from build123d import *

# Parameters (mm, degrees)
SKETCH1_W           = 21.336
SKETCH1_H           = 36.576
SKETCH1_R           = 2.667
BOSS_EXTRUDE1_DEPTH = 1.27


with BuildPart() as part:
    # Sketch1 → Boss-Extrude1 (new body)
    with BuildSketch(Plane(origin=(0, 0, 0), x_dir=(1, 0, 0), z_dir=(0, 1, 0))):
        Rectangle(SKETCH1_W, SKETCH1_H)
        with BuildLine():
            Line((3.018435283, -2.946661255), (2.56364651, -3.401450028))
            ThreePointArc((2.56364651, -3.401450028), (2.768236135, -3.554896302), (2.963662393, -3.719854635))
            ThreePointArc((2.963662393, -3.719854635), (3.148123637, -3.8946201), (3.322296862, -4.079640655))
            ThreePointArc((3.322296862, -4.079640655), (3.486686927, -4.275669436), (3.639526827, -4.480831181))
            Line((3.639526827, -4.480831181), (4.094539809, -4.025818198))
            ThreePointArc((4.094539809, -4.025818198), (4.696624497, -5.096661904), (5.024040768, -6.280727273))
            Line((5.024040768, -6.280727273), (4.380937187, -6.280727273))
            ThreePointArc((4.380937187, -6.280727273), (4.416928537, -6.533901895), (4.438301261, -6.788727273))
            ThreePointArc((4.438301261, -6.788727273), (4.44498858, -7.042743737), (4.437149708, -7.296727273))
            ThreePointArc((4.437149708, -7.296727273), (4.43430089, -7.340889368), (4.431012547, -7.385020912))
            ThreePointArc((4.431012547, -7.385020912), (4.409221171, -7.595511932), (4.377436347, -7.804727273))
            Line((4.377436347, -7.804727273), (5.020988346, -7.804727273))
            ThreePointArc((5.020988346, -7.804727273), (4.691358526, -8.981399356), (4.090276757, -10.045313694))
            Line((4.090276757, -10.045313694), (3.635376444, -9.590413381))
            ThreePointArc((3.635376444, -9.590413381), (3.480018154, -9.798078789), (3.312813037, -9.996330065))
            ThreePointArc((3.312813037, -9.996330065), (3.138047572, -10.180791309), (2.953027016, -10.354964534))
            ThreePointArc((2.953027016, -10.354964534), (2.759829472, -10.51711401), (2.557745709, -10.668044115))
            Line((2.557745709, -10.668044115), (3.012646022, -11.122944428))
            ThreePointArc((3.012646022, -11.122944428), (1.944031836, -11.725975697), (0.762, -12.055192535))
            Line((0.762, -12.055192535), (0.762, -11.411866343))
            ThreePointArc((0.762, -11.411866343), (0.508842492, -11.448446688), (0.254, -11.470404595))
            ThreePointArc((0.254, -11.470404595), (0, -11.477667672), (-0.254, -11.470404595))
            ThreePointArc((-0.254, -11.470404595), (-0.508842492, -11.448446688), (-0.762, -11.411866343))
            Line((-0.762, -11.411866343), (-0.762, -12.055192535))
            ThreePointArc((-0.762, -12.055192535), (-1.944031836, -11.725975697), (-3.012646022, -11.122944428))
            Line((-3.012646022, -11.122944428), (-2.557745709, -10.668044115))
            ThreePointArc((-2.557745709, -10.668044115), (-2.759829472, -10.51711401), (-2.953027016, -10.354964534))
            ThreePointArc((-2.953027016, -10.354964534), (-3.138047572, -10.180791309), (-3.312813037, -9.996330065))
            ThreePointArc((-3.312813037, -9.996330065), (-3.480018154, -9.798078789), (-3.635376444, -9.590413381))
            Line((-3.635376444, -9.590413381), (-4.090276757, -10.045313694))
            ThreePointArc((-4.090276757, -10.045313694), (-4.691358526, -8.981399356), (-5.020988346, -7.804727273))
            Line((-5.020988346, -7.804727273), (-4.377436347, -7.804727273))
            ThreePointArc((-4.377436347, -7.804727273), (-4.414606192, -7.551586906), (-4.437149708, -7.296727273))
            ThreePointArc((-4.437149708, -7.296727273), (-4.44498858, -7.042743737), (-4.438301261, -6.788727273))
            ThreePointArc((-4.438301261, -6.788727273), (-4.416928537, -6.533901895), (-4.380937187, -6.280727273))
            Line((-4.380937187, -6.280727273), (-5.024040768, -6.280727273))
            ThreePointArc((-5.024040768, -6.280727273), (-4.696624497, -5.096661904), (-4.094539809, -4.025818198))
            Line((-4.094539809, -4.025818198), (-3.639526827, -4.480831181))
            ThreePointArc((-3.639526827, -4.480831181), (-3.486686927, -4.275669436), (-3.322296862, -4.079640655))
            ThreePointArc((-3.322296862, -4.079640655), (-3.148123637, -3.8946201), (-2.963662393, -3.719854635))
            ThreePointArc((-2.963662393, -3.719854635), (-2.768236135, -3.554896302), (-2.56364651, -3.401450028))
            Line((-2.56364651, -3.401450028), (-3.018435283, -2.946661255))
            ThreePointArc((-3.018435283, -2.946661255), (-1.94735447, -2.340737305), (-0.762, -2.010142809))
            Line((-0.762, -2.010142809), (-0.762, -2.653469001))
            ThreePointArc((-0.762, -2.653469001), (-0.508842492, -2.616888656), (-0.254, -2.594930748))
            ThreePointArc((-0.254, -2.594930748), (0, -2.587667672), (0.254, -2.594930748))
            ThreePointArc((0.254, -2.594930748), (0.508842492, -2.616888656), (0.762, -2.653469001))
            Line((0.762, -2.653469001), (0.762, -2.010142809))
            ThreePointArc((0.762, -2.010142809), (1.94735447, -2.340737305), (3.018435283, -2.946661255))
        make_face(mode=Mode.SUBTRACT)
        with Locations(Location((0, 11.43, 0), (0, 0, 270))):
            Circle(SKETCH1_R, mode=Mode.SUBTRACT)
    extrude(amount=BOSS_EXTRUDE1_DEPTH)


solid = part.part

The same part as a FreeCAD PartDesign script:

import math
import FreeCAD as App
import Part
import Sketcher

V = App.Vector
Q = App.Units.Quantity


def add_polygon(sketch, points):
    """Adds a closed chain of lines whose ends are joined by coincident constraints."""
    first, n = sketch.GeometryCount, len(points)
    for a, b in zip(points, points[1:] + points[:1]):
        sketch.addGeometry(Part.LineSegment(App.Vector(*a, 0), App.Vector(*b, 0)), False)
    for i in range(n):
        sketch.addConstraint(Sketcher.Constraint("Coincident", first + i, 2, first + (i + 1) % n, 1))

doc = App.newDocument("Part")
body = doc.addObject("PartDesign::Body", "Body")

# Sketch on XZ plane
sketch1 = body.newObject("Sketcher::SketchObject", "Sketch")
sketch1.AttachmentSupport = (doc.getObject("XZ_Plane"), [""])
sketch1.MapMode = "FlatFace"
add_polygon(sketch1, [(-10.668, -18.288), (-10.668, 18.288), (10.668, 18.288), (10.668, -18.288)])  # lines 0-3
sketch1.addGeometry(Part.ArcOfCircle(Part.Circle(V(0, 7.032668, 0), V(0, 0, 1), 5.08), math.radians(-81.373073), math.radians(-53.545789)), False)  # 4
sketch1.addGeometry(Part.LineSegment(V(3.018435, 2.946661, 0), V(2.563647, 3.40145, 0)), False)  # 5
sketch1.addGeometry(Part.ArcOfCircle(Part.Circle(V(0, 7.032668, 0), V(0, 0, 1), 4.445), math.radians(-54.777836), math.radians(-48.183994)), False)  # 6
sketch1.addGeometry(Part.ArcOfCircle(Part.Circle(V(0, 7.032668, 0), V(0, 0, 1), 4.445), math.radians(-48.183994), math.radians(-41.632328)), False)  # 7
sketch1.addGeometry(Part.ArcOfCircle(Part.Circle(V(0, 7.032668, 0), V(0, 0, 1), 4.445), math.radians(-41.632328), math.radians(-35.036031)), False)  # 8
sketch1.addGeometry(Part.LineSegment(V(3.639527, 4.480831, 0), V(4.09454, 4.025818, 0)), False)  # 9
sketch1.addGeometry(Part.ArcOfCircle(Part.Circle(V(0, 7.032668, 0), V(0, 0, 1), 5.08), math.radians(-36.291919), math.radians(-8.512186)), False)  # 10
sketch1.addGeometry(Part.LineSegment(V(5.024041, 6.280727, 0), V(4.380937, 6.280727, 0)), False)  # 11
sketch1.addGeometry(Part.ArcOfCircle(Part.Circle(V(0, 7.032668, 0), V(0, 0, 1), 4.445), math.radians(-9.7393), math.radians(-3.145957)), False)  # 12
sketch1.addGeometry(Part.ArcOfCircle(Part.Circle(V(0, 7.032668, 0), V(0, 0, 1), 4.445), math.radians(-3.145957), math.radians(3.405717)), False)  # 13
sketch1.addGeometry(Part.ArcOfCircle(Part.Circle(V(-0.000009, 7.032667, 0), V(0, 0, 1), 4.445009), math.radians(3.405719), math.radians(4.546581)), False)  # 14
sketch1.addGeometry(Part.ArcOfCircle(Part.Circle(V(0, 7.032668, 0), V(0, 0, 1), 4.445), math.radians(4.546582), math.radians(10.002532)), False)  # 15
sketch1.addGeometry(Part.LineSegment(V(4.377436, 7.804727, 0), V(5.020988, 7.804727, 0)), False)  # 16
sketch1.addGeometry(Part.ArcOfCircle(Part.Circle(V(0, 7.032668, 0), V(0, 0, 1), 5.08), math.radians(8.741702), math.radians(36.373073)), False)  # 17
sketch1.addGeometry(Part.LineSegment(V(4.090277, 10.045314, 0), V(3.635376, 9.590413, 0)), False)  # 18
sketch1.addGeometry(Part.ArcOfCircle(Part.Circle(V(0, 7.032668, 0), V(0, 0, 1), 4.445), math.radians(35.129111), math.radians(41.816006)), False)  # 19
sketch1.addGeometry(Part.ArcOfCircle(Part.Circle(V(0, 7.032668, 0), V(0, 0, 1), 4.445), math.radians(41.816006), math.radians(48.367672)), False)  # 20
sketch1.addGeometry(Part.ArcOfCircle(Part.Circle(V(0, 7.032668, 0), V(0, 0, 1), 4.445), math.radians(48.367672), math.radians(54.87089)), False)  # 21
sketch1.addGeometry(Part.LineSegment(V(2.557746, 10.668044, 0), V(3.012646, 11.122944, 0)), False)  # 22
sketch1.addGeometry(Part.ArcOfCircle(Part.Circle(V(0, 7.032668, 0), V(0, 0, 1), 5.08), math.radians(53.626927), math.radians(81.373073)), False)  # 23
sketch1.addGeometry(Part.LineSegment(V(0.762, 12.055193, 0), V(0.762, 11.411866, 0)), False)  # 24
sketch1.addGeometry(Part.ArcOfCircle(Part.Circle(V(0, 7.032668, 0), V(0, 0, 1), 4.445), math.radians(80.12911), math.radians(86.724171)), False)  # 25
sketch1.addGeometry(Part.ArcOfCircle(Part.Circle(V(0, 7.032668, 0), V(0, 0, 1), 4.445), math.radians(86.724171), math.radians(93.275829)), False)  # 26
sketch1.addGeometry(Part.ArcOfCircle(Part.Circle(V(0, 7.032668, 0), V(0, 0, 1), 4.445), math.radians(93.275829), math.radians(99.87089)), False)  # 27
sketch1.addGeometry(Part.LineSegment(V(-0.762, 11.411866, 0), V(-0.762, 12.055193, 0)), False)  # 28
sketch1.addGeometry(Part.ArcOfCircle(Part.Circle(V(0, 7.032668, 0), V(0, 0, 1), 5.08), math.radians(98.626927), math.radians(126.373073)), False)  # 29
sketch1.addGeometry(Part.LineSegment(V(-3.012646, 11.122944, 0), V(-2.557746, 10.668044, 0)), False)  # 30
sketch1.addGeometry(Part.ArcOfCircle(Part.Circle(V(0, 7.032668, 0), V(0, 0, 1), 4.445), math.radians(125.12911), math.radians(131.632328)), False)  # 31
sketch1.addGeometry(Part.ArcOfCircle(Part.Circle(V(0, 7.032668, 0), V(0, 0, 1), 4.445), math.radians(131.632328), math.radians(138.183994)), False)  # 32
sketch1.addGeometry(Part.ArcOfCircle(Part.Circle(V(0, 7.032668, 0), V(0, 0, 1), 4.445), math.radians(138.183994), math.radians(144.870889)), False)  # 33
sketch1.addGeometry(Part.LineSegment(V(-3.635376, 9.590413, 0), V(-4.090277, 10.045314, 0)), False)  # 34
sketch1.addGeometry(Part.ArcOfCircle(Part.Circle(V(0, 7.032668, 0), V(0, 0, 1), 5.08), math.radians(143.626927), math.radians(171.258298)), False)  # 35
sketch1.addGeometry(Part.LineSegment(V(-5.020988, 7.804727, 0), V(-4.377436, 7.804727, 0)), False)  # 36
sketch1.addGeometry(Part.ArcOfCircle(Part.Circle(V(0, 7.032668, 0), V(0, 0, 1), 4.445), math.radians(169.997468), math.radians(176.594283)), False)  # 37
sketch1.addGeometry(Part.ArcOfCircle(Part.Circle(V(0, 7.032668, 0), V(0, 0, 1), 4.445), math.radians(176.594283), math.radians(183.145957)), False)  # 38
sketch1.addGeometry(Part.ArcOfCircle(Part.Circle(V(0, 7.032668, 0), V(0, 0, 1), 4.445), math.radians(-176.854043), math.radians(-170.2607)), False)  # 39
sketch1.addGeometry(Part.LineSegment(V(-4.380937, 6.280727, 0), V(-5.024041, 6.280727, 0)), False)  # 40
sketch1.addGeometry(Part.ArcOfCircle(Part.Circle(V(0, 7.032668, 0), V(0, 0, 1), 5.08), math.radians(-171.487814), math.radians(-143.708081)), False)  # 41
sketch1.addGeometry(Part.LineSegment(V(-4.09454, 4.025818, 0), V(-3.639527, 4.480831, 0)), False)  # 42
sketch1.addGeometry(Part.ArcOfCircle(Part.Circle(V(0, 7.032668, 0), V(0, 0, 1), 4.445), math.radians(-144.963969), math.radians(-138.367672)), False)  # 43
sketch1.addGeometry(Part.ArcOfCircle(Part.Circle(V(0, 7.032668, 0), V(0, 0, 1), 4.445), math.radians(-138.367672), math.radians(-131.816006)), False)  # 44
sketch1.addGeometry(Part.ArcOfCircle(Part.Circle(V(0, 7.032668, 0), V(0, 0, 1), 4.445), math.radians(-131.816006), math.radians(-125.222164)), False)  # 45
sketch1.addGeometry(Part.LineSegment(V(-2.563647, 3.40145, 0), V(-3.018435, 2.946661, 0)), False)  # 46
sketch1.addGeometry(Part.ArcOfCircle(Part.Circle(V(0, 7.032668, 0), V(0, 0, 1), 5.08), math.radians(-126.454211), math.radians(-98.626927)), False)  # 47
sketch1.addGeometry(Part.LineSegment(V(-0.762, 2.010143, 0), V(-0.762, 2.653469, 0)), False)  # 48
sketch1.addGeometry(Part.ArcOfCircle(Part.Circle(V(0, 7.032668, 0), V(0, 0, 1), 4.445), math.radians(-99.87089), math.radians(-93.275829)), False)  # 49
sketch1.addGeometry(Part.ArcOfCircle(Part.Circle(V(0, 7.032668, 0), V(0, 0, 1), 4.445), math.radians(-93.275829), math.radians(-86.724171)), False)  # 50
sketch1.addGeometry(Part.ArcOfCircle(Part.Circle(V(0, 7.032668, 0), V(0, 0, 1), 4.445), math.radians(-86.724171), math.radians(-80.12911)), False)  # 51
sketch1.addGeometry(Part.LineSegment(V(0.762, 2.653469, 0), V(0.762, 2.010143, 0)), False)  # 52
sketch1.addGeometry(Part.Circle(V(0, -11.43, 0), V(0, 0, 1), 2.667), False)  # 53
sketch1.addConstraint(Sketcher.Constraint("Coincident", 4, 2, 5, 1))
sketch1.addConstraint(Sketcher.Constraint("Coincident", 5, 2, 6, 1))
sketch1.addConstraint(Sketcher.Constraint("Coincident", 6, 2, 7, 1))
sketch1.addConstraint(Sketcher.Constraint("Coincident", 7, 2, 8, 1))
sketch1.addConstraint(Sketcher.Constraint("Coincident", 8, 2, 9, 1))
sketch1.addConstraint(Sketcher.Constraint("Coincident", 9, 2, 10, 1))
sketch1.addConstraint(Sketcher.Constraint("Coincident", 10, 2, 11, 1))
sketch1.addConstraint(Sketcher.Constraint("Coincident", 11, 2, 12, 1))
sketch1.addConstraint(Sketcher.Constraint("Coincident", 12, 2, 13, 1))
sketch1.addConstraint(Sketcher.Constraint("Coincident", 13, 2, 14, 1))
sketch1.addConstraint(Sketcher.Constraint("Coincident", 14, 2, 15, 1))
sketch1.addConstraint(Sketcher.Constraint("Coincident", 15, 2, 16, 1))
sketch1.addConstraint(Sketcher.Constraint("Coincident", 16, 2, 17, 1))
sketch1.addConstraint(Sketcher.Constraint("Coincident", 17, 2, 18, 1))
sketch1.addConstraint(Sketcher.Constraint("Coincident", 18, 2, 19, 1))
sketch1.addConstraint(Sketcher.Constraint("Coincident", 19, 2, 20, 1))
sketch1.addConstraint(Sketcher.Constraint("Coincident", 20, 2, 21, 1))
sketch1.addConstraint(Sketcher.Constraint("Coincident", 21, 2, 22, 1))
sketch1.addConstraint(Sketcher.Constraint("Coincident", 22, 2, 23, 1))
sketch1.addConstraint(Sketcher.Constraint("Coincident", 23, 2, 24, 1))
sketch1.addConstraint(Sketcher.Constraint("Coincident", 24, 2, 25, 1))
sketch1.addConstraint(Sketcher.Constraint("Coincident", 25, 2, 26, 1))
sketch1.addConstraint(Sketcher.Constraint("Coincident", 26, 2, 27, 1))
sketch1.addConstraint(Sketcher.Constraint("Coincident", 27, 2, 28, 1))
sketch1.addConstraint(Sketcher.Constraint("Coincident", 28, 2, 29, 1))
sketch1.addConstraint(Sketcher.Constraint("Coincident", 29, 2, 30, 1))
sketch1.addConstraint(Sketcher.Constraint("Coincident", 30, 2, 31, 1))
sketch1.addConstraint(Sketcher.Constraint("Coincident", 31, 2, 32, 1))
sketch1.addConstraint(Sketcher.Constraint("Coincident", 32, 2, 33, 1))
sketch1.addConstraint(Sketcher.Constraint("Coincident", 33, 2, 34, 1))
sketch1.addConstraint(Sketcher.Constraint("Coincident", 34, 2, 35, 1))
sketch1.addConstraint(Sketcher.Constraint("Coincident", 35, 2, 36, 1))
sketch1.addConstraint(Sketcher.Constraint("Coincident", 36, 2, 37, 1))
sketch1.addConstraint(Sketcher.Constraint("Coincident", 37, 2, 38, 1))
sketch1.addConstraint(Sketcher.Constraint("Coincident", 38, 2, 39, 1))
sketch1.addConstraint(Sketcher.Constraint("Coincident", 39, 2, 40, 1))
sketch1.addConstraint(Sketcher.Constraint("Coincident", 40, 2, 41, 1))
sketch1.addConstraint(Sketcher.Constraint("Coincident", 41, 2, 42, 1))
sketch1.addConstraint(Sketcher.Constraint("Coincident", 42, 2, 43, 1))
sketch1.addConstraint(Sketcher.Constraint("Coincident", 43, 2, 44, 1))
sketch1.addConstraint(Sketcher.Constraint("Coincident", 44, 2, 45, 1))
sketch1.addConstraint(Sketcher.Constraint("Coincident", 45, 2, 46, 1))
sketch1.addConstraint(Sketcher.Constraint("Coincident", 46, 2, 47, 1))
sketch1.addConstraint(Sketcher.Constraint("Coincident", 47, 2, 48, 1))
sketch1.addConstraint(Sketcher.Constraint("Coincident", 48, 2, 49, 1))
sketch1.addConstraint(Sketcher.Constraint("Coincident", 49, 2, 50, 1))
sketch1.addConstraint(Sketcher.Constraint("Coincident", 50, 2, 51, 1))
sketch1.addConstraint(Sketcher.Constraint("Coincident", 51, 2, 52, 1))
sketch1.addConstraint(Sketcher.Constraint("Coincident", 52, 2, 4, 1))
sketch1.addConstraint(Sketcher.Constraint("Vertical", 0))
sketch1.addConstraint(Sketcher.Constraint("Horizontal", 1))
sketch1.addConstraint(Sketcher.Constraint("Vertical", 2))
sketch1.addConstraint(Sketcher.Constraint("Horizontal", 3))
sketch1.addConstraint(Sketcher.Constraint("Horizontal", 11))
sketch1.addConstraint(Sketcher.Constraint("Horizontal", 16))
sketch1.addConstraint(Sketcher.Constraint("Vertical", 24))
sketch1.addConstraint(Sketcher.Constraint("Vertical", 28))
sketch1.addConstraint(Sketcher.Constraint("Horizontal", 36))
sketch1.addConstraint(Sketcher.Constraint("Horizontal", 40))
sketch1.addConstraint(Sketcher.Constraint("Vertical", 48))
sketch1.addConstraint(Sketcher.Constraint("Vertical", 52))
sketch1.addConstraint(Sketcher.Constraint("Coincident", 6, 3, 4, 3))
sketch1.addConstraint(Sketcher.Constraint("Coincident", 7, 3, 4, 3))
sketch1.addConstraint(Sketcher.Constraint("Coincident", 8, 3, 4, 3))
sketch1.addConstraint(Sketcher.Constraint("Coincident", 10, 3, 4, 3))
sketch1.addConstraint(Sketcher.Constraint("Coincident", 12, 3, 4, 3))
sketch1.addConstraint(Sketcher.Constraint("Coincident", 13, 3, 4, 3))
sketch1.addConstraint(Sketcher.Constraint("Coincident", 14, 3, 4, 3))
sketch1.addConstraint(Sketcher.Constraint("Coincident", 15, 3, 4, 3))
sketch1.addConstraint(Sketcher.Constraint("Coincident", 17, 3, 4, 3))
sketch1.addConstraint(Sketcher.Constraint("Coincident", 19, 3, 4, 3))
sketch1.addConstraint(Sketcher.Constraint("Coincident", 20, 3, 4, 3))
sketch1.addConstraint(Sketcher.Constraint("Coincident", 21, 3, 4, 3))
sketch1.addConstraint(Sketcher.Constraint("Coincident", 23, 3, 4, 3))
sketch1.addConstraint(Sketcher.Constraint("Coincident", 25, 3, 4, 3))
sketch1.addConstraint(Sketcher.Constraint("Coincident", 26, 3, 4, 3))
sketch1.addConstraint(Sketcher.Constraint("Coincident", 27, 3, 4, 3))
sketch1.addConstraint(Sketcher.Constraint("Coincident", 29, 3, 4, 3))
sketch1.addConstraint(Sketcher.Constraint("Coincident", 31, 3, 4, 3))
sketch1.addConstraint(Sketcher.Constraint("Coincident", 32, 3, 4, 3))
sketch1.addConstraint(Sketcher.Constraint("Coincident", 33, 3, 4, 3))
sketch1.addConstraint(Sketcher.Constraint("Coincident", 35, 3, 4, 3))
sketch1.addConstraint(Sketcher.Constraint("Coincident", 37, 3, 4, 3))
sketch1.addConstraint(Sketcher.Constraint("Coincident", 38, 3, 4, 3))
sketch1.addConstraint(Sketcher.Constraint("Coincident", 39, 3, 4, 3))
sketch1.addConstraint(Sketcher.Constraint("Coincident", 41, 3, 4, 3))
sketch1.addConstraint(Sketcher.Constraint("Coincident", 43, 3, 4, 3))
sketch1.addConstraint(Sketcher.Constraint("Coincident", 44, 3, 4, 3))
sketch1.addConstraint(Sketcher.Constraint("Coincident", 45, 3, 4, 3))
sketch1.addConstraint(Sketcher.Constraint("Coincident", 47, 3, 4, 3))
sketch1.addConstraint(Sketcher.Constraint("Coincident", 49, 3, 4, 3))
sketch1.addConstraint(Sketcher.Constraint("Coincident", 50, 3, 4, 3))
sketch1.addConstraint(Sketcher.Constraint("Coincident", 51, 3, 4, 3))
sketch1.addConstraint(Sketcher.Constraint("PointOnObject", 4, 3, -2))
sketch1.addConstraint(Sketcher.Constraint("PointOnObject", 53, 3, -2))
sketch1.addConstraint(Sketcher.Constraint("Radius", 4, Q("0.2 in")))
sketch1.addConstraint(Sketcher.Constraint("Radius", 10, Q("0.2 in")))
sketch1.addConstraint(Sketcher.Constraint("Radius", 17, Q("0.2 in")))
sketch1.addConstraint(Sketcher.Constraint("Radius", 23, Q("0.2 in")))
sketch1.addConstraint(Sketcher.Constraint("Radius", 29, Q("0.2 in")))
sketch1.addConstraint(Sketcher.Constraint("Radius", 35, Q("0.2 in")))
sketch1.addConstraint(Sketcher.Constraint("Radius", 41, Q("0.2 in")))
sketch1.addConstraint(Sketcher.Constraint("Radius", 47, Q("0.2 in")))
sketch1.addConstraint(Sketcher.Constraint("Diameter", 53, Q("0.21 in")))
sketch1.addConstraint(Sketcher.Constraint("Radius", 6, Q("0.175 in")))
sketch1.addConstraint(Sketcher.Constraint("Radius", 12, Q("0.175 in")))
sketch1.addConstraint(Sketcher.Constraint("Radius", 19, Q("0.175 in")))
sketch1.addConstraint(Sketcher.Constraint("Radius", 25, Q("0.175 in")))
sketch1.addConstraint(Sketcher.Constraint("Radius", 31, Q("0.175 in")))
sketch1.addConstraint(Sketcher.Constraint("Radius", 37, Q("0.175 in")))
sketch1.addConstraint(Sketcher.Constraint("Radius", 43, Q("0.175 in")))
sketch1.addConstraint(Sketcher.Constraint("Radius", 49, Q("0.175 in")))
sketch1.addConstraint(Sketcher.Constraint("DistanceX", 1, 1, 1, 2, Q("0.84 in")))
sketch1.addConstraint(Sketcher.Constraint("DistanceY", 0, 1, 0, 2, Q("1.44 in")))
sketch1.addConstraint(Sketcher.Constraint("DistanceY", 53, 3, -1, 1, Q("0.45 in")))
sketch1.addConstraint(Sketcher.Constraint("DistanceX", 0, 2, -1, 1, Q("0.42 in")))
sketch1.addConstraint(Sketcher.Constraint("DistanceY", -1, 1, 0, 2, Q("0.72 in")))
sketch1.addConstraint(Sketcher.Constraint("DistanceX", -1, 1, 23, 2, Q("0.03 in")))
sketch1.addConstraint(Sketcher.Constraint("DistanceX", -1, 1, 25, 2, Q("0.01 in")))
sketch1.addConstraint(Sketcher.Constraint("DistanceX", 26, 2, -1, 1, Q("0.01 in")))
sketch1.addConstraint(Sketcher.Constraint("DistanceX", 27, 2, -1, 1, Q("0.03 in")))
sketch1.addConstraint(Sketcher.Constraint("DistanceX", 47, 2, -1, 1, Q("0.03 in")))
sketch1.addConstraint(Sketcher.Constraint("DistanceX", 49, 2, -1, 1, Q("0.01 in")))
sketch1.addConstraint(Sketcher.Constraint("DistanceX", -1, 1, 50, 2, Q("0.01 in")))
sketch1.addConstraint(Sketcher.Constraint("DistanceX", -1, 1, 51, 2, Q("0.03 in")))
sketch1.addConstraint(Sketcher.Constraint("DistanceX", 16, 1, 16, 2, 0.643552))
sketch1.addConstraint(Sketcher.Constraint("DistanceX", 36, 1, 36, 2, 0.643552))
sketch1.addConstraint(Sketcher.Constraint("DistanceX", -1, 1, 12, 2, 4.438301))
sketch1.addConstraint(Sketcher.Constraint("DistanceX", 38, 2, -1, 1, 4.438301))
sketch1.addConstraint(Sketcher.Constraint("Distance", 5, 0.643168))
sketch1.addConstraint(Sketcher.Constraint("Distance", 46, 0.643168))
sketch1.addConstraint(Sketcher.Constraint("DistanceX", 11, 2, 11, 1, 0.643104))
sketch1.addConstraint(Sketcher.Constraint("DistanceX", 40, 2, 40, 1, 0.643104))
sketch1.addConstraint(Sketcher.Constraint("DistanceY", -1, 1, 50, 3, 7.032668))
sketch1.addConstraint(Sketcher.Constraint("DistanceY", -1, 1, 4, 2, 2.946661))
sketch1.addConstraint(Sketcher.Constraint("DistanceY", -1, 1, 7, 2, 4.079641))
sketch1.addConstraint(Sketcher.Constraint("DistanceY", -1, 1, 8, 2, 4.480831))
sketch1.addConstraint(Sketcher.Constraint("DistanceX", -1, 1, 9, 2, 4.09454))
sketch1.addConstraint(Sketcher.Constraint("DistanceX", -1, 1, 13, 2, 4.43715))
sketch1.addConstraint(Sketcher.Constraint("DistanceY", -1, 1, 14, 2, 7.385021))
sketch1.addConstraint(Sketcher.Constraint("DistanceY", -1, 1, 19, 2, 9.99633))
sketch1.addConstraint(Sketcher.Constraint("DistanceY", -1, 1, 32, 2, 9.99633))
sketch1.addConstraint(Sketcher.Constraint("DistanceX", 37, 2, -1, 1, 4.43715))
sketch1.addConstraint(Sketcher.Constraint("DistanceX", 41, 2, -1, 1, 4.09454))
sketch1.addConstraint(Sketcher.Constraint("DistanceY", -1, 1, 42, 2, 4.480831))
sketch1.addConstraint(Sketcher.Constraint("DistanceY", -1, 1, 43, 2, 4.079641))
sketch1.addConstraint(Sketcher.Constraint("DistanceY", -1, 1, 45, 2, 3.40145))
sketch1.addConstraint(Sketcher.Constraint("Distance", 18, 0.643326))
sketch1.addConstraint(Sketcher.Constraint("Distance", 22, 0.643326))
sketch1.addConstraint(Sketcher.Constraint("Distance", 30, 0.643326))
sketch1.addConstraint(Sketcher.Constraint("Distance", 34, 0.643326))
sketch1.addConstraint(Sketcher.Constraint("DistanceX", -1, 1, 6, 2, 2.963662))
sketch1.addConstraint(Sketcher.Constraint("DistanceX", -1, 1, 17, 2, 4.090277))
sketch1.addConstraint(Sketcher.Constraint("DistanceX", -1, 1, 20, 2, 2.953027))
sketch1.addConstraint(Sketcher.Constraint("DistanceX", -1, 1, 21, 2, 2.557746))
sketch1.addConstraint(Sketcher.Constraint("DistanceX", 29, 2, -1, 1, 3.012646))
sketch1.addConstraint(Sketcher.Constraint("DistanceX", 31, 2, -1, 1, 2.953027))
sketch1.addConstraint(Sketcher.Constraint("DistanceX", 33, 2, -1, 1, 3.635376))
sketch1.addConstraint(Sketcher.Constraint("DistanceX", 44, 2, -1, 1, 2.963662))
pad1 = body.newObject("PartDesign::Pad", "Pad")
pad1.Profile = sketch1
pad1.Length = Q("0.05 in")
pad1.Reversed = True

doc.recompute()
